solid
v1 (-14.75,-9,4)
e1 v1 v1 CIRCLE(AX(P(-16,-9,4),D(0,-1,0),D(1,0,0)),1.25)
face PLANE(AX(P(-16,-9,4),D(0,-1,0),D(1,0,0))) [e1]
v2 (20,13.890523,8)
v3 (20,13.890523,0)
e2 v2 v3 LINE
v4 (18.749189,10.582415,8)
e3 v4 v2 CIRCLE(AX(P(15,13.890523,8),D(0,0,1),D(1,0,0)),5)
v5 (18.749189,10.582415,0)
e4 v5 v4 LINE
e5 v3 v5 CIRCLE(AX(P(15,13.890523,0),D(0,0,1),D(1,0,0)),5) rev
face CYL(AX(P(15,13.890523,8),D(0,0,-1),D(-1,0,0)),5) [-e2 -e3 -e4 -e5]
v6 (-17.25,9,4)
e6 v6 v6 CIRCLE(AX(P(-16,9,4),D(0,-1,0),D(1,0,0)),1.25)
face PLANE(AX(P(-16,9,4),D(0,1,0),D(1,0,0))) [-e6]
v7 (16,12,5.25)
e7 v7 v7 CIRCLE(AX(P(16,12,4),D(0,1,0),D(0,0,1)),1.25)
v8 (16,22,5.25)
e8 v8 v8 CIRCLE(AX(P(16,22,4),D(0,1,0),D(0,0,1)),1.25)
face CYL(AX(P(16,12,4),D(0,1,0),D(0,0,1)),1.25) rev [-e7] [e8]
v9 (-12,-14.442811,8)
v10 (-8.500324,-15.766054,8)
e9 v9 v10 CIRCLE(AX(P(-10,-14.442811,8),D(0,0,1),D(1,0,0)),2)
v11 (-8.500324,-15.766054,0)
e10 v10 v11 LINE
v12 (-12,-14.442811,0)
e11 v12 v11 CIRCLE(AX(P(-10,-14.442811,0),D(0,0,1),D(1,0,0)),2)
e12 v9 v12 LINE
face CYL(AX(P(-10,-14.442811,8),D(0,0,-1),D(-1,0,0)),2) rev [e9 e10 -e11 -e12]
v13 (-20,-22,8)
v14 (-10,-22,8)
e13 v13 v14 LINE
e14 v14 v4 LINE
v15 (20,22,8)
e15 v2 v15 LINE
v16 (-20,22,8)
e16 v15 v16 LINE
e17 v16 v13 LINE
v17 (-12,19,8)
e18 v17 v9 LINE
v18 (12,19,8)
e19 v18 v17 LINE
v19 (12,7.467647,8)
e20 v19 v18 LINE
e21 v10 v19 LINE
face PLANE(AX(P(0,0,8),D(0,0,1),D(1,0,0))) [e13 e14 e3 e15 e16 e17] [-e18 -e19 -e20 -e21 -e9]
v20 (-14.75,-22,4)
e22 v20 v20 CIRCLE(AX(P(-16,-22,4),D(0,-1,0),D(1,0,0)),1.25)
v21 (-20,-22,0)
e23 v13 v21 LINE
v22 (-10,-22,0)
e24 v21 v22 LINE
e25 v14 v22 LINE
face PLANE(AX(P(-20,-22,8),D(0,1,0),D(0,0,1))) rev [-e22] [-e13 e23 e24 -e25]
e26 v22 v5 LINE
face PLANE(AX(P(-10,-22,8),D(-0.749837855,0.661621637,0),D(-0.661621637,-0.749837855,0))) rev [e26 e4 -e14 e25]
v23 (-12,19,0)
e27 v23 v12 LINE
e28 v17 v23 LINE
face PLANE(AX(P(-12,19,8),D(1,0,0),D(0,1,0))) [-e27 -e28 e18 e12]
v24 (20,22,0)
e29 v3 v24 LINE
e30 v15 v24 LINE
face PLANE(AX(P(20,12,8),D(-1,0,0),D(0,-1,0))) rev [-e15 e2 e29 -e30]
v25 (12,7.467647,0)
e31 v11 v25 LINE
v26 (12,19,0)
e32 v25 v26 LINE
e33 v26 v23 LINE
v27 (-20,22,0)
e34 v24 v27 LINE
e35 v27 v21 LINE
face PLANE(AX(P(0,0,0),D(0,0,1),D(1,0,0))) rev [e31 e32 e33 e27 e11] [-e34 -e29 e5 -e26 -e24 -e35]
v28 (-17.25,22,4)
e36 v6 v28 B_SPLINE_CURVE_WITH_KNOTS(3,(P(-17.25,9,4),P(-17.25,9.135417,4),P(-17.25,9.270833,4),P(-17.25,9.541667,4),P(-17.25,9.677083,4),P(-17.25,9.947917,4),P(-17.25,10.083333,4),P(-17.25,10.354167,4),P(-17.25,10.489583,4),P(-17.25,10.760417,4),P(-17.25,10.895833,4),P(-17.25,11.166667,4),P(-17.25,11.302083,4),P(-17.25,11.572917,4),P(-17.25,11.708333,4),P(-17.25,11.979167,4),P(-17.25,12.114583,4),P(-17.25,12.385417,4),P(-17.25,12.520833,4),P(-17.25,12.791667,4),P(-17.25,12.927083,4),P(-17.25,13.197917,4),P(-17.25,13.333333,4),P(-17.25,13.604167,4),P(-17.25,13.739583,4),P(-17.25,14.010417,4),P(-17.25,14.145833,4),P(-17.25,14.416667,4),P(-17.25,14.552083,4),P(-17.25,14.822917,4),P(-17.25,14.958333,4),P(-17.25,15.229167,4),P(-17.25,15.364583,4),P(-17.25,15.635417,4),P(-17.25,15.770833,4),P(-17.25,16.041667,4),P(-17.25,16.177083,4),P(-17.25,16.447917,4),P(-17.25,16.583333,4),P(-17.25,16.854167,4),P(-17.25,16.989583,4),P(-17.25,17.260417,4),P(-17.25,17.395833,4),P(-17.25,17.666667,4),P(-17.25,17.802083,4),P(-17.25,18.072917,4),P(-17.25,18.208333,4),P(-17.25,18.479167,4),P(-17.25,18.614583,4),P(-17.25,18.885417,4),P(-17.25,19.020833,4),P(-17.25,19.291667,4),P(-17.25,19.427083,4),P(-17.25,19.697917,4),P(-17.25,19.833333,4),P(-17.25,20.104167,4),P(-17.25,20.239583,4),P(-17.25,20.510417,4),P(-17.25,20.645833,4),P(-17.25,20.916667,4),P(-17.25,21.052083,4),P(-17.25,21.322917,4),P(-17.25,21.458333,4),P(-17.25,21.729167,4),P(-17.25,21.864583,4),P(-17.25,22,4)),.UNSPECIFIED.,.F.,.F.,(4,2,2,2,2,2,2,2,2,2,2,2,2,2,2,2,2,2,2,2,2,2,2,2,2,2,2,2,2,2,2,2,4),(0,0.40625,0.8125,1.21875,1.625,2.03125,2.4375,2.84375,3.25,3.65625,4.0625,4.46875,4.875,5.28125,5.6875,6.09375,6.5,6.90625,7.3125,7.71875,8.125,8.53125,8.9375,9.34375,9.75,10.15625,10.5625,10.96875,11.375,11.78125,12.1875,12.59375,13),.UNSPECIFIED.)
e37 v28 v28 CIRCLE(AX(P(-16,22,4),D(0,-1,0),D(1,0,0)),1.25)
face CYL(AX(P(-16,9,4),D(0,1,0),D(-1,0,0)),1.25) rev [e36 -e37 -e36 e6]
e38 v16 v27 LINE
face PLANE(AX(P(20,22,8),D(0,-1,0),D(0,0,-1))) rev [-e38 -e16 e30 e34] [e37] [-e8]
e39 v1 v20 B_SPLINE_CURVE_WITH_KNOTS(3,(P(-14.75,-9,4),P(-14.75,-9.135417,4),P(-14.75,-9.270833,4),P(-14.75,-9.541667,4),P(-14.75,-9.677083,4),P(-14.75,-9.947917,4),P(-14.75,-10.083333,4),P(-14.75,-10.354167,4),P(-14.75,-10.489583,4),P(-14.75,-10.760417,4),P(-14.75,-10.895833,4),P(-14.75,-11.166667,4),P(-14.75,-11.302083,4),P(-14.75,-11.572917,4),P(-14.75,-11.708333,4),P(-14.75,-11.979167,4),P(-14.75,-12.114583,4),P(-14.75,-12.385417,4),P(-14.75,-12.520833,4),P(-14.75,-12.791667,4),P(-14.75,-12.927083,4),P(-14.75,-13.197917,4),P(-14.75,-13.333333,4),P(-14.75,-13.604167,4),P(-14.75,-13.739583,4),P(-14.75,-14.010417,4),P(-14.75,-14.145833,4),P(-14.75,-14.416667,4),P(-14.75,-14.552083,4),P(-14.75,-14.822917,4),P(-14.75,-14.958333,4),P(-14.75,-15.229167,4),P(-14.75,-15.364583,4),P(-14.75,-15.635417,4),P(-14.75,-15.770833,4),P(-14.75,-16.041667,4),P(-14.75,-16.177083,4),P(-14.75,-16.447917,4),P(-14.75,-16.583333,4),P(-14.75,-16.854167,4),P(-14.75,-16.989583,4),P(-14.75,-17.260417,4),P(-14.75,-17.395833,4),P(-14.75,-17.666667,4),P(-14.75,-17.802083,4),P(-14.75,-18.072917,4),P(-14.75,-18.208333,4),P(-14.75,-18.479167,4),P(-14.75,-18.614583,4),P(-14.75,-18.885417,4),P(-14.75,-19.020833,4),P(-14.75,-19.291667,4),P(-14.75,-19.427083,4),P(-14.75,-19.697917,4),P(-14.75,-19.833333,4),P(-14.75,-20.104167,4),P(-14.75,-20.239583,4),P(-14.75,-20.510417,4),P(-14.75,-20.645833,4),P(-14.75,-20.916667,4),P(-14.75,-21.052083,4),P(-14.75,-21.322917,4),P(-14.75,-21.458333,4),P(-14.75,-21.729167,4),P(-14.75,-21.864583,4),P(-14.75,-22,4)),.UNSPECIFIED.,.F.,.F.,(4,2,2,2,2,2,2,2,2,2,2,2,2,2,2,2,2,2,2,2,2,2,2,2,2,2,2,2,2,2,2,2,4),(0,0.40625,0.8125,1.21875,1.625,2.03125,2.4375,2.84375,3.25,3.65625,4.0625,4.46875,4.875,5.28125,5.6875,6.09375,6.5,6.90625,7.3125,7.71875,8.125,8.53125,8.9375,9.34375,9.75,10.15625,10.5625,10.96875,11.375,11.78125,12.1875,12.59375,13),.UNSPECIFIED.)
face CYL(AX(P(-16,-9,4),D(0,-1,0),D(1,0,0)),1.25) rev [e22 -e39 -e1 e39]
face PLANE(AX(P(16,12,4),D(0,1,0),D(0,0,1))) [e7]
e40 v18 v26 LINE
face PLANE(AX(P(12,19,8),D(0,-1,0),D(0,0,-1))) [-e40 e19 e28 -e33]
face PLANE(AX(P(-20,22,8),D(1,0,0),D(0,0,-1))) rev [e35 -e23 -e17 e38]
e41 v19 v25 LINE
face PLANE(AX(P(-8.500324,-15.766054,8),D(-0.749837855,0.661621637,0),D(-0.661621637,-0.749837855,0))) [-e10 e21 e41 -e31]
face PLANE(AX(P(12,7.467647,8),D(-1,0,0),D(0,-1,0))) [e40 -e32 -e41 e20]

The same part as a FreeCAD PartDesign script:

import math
import FreeCAD as App
import Part
import Sketcher

V = App.Vector


def edges_at(feature, points):
    """Names of the edges that pass closest to the given points."""
    edges = feature.Shape.Edges
    near = lambda p: min(range(len(edges)), key=lambda i: edges[i].distToShape(Part.Vertex(*p))[0])
    return sorted({f"Edge{near(p) + 1}" for p in points})


def add_polygon(sketch, points):
    """Adds a closed chain of lines whose ends are joined by coincident constraints."""
    first, n = sketch.GeometryCount, len(points)
    for a, b in zip(points, points[1:] + points[:1]):
        sketch.addGeometry(Part.LineSegment(App.Vector(*a, 0), App.Vector(*b, 0)), False)
    for i in range(n):
        sketch.addConstraint(Sketcher.Constraint("Coincident", first + i, 2, first + (i + 1) % n, 1))

doc = App.newDocument("Part")
params = doc.addObject("Spreadsheet::Sheet", "Params")
for row, (alias, value) in enumerate([
    ("sketch1_radius", "2 mm"),
    ("sketch1_width", "10 mm"),
    ("sketch1_width2", "40 mm"),
    ("sketch1_width3", "24 mm"),
    ("sketch1_height", "44 mm"),
    ("pad1_length", "8 mm"),
    ("sketch2_diameter", "2.5 mm"),
    ("pocket1_length", "13 mm"),
    ("sketch3_diameter", "2.5 mm"),
    ("pocket2_length", "10 mm"),
    ("fillet_radius", "5 mm"),
], start=1):
    params.set(f"A{row}", alias)
    params.set(f"B{row}", "=" + value)
    params.setAlias(f"B{row}", alias)

body = doc.addObject("PartDesign::Body", "Body")

# Sketch on XY plane
sketch1 = body.newObject("Sketcher::SketchObject", "Sketch")
sketch1.AttachmentSupport = (doc.getObject("XY_Plane"), [""])
sketch1.MapMode = "FlatFace"
add_polygon(sketch1, [(-20, 22), (-20, -22), (-10, -22), (20, 12), (20, 22)])  # lines 0-4
sketch1.addGeometry(Part.LineSegment(V(-12, -14.442811, 0), V(-12, 19, 0)), False)  # 5
sketch1.addGeometry(Part.LineSegment(V(-12, 19, 0), V(12, 19, 0)), False)  # 6
sketch1.addGeometry(Part.LineSegment(V(12, 19, 0), V(12, 7.467647, 0)), False)  # 7
sketch1.addGeometry(Part.LineSegment(V(12, 7.467647, 0), V(-8.500324, -15.766054, 0)), False)  # 8
sketch1.addGeometry(Part.ArcOfCircle(Part.Circle(V(-10, -14.442811, 0), V(0, 0, 1), 2), math.radians(180), math.radians(318.576334)), False)  # 9
sketch1.addConstraint([
    Sketcher.Constraint("Coincident", 5, 2, 6, 1),
    Sketcher.Constraint("Coincident", 6, 2, 7, 1),
    Sketcher.Constraint("Coincident", 7, 2, 8, 1),
    Sketcher.Constraint("Tangent", 8, 2, 9, 2),
    Sketcher.Constraint("Tangent", 9, 1, 5, 1),
    Sketcher.Constraint("Vertical", 0),
    Sketcher.Constraint("Horizontal", 1),
    Sketcher.Constraint("Vertical", 3),
    Sketcher.Constraint("Horizontal", 4),
    Sketcher.Constraint("Vertical", 5),
    Sketcher.Constraint("Horizontal", 6),
    Sketcher.Constraint("Vertical", 7),
    Sketcher.Constraint("Symmetric", 0, 2, 3, 2, -1, 1),
    Sketcher.Constraint("Parallel", 2, 8),
    Sketcher.Constraint("Vertical", 9, 3, 1, 2),
    Sketcher.Constraint("Equal", 1, 3),
    Sketcher.Constraint("Radius", 9, 2.0),
    Sketcher.Constraint("DistanceX", 1, 1, 1, 2, 10.0),
    Sketcher.Constraint("DistanceX", 4, 2, 4, 1, 40.0),
    Sketcher.Constraint("DistanceX", 6, 1, 6, 2, 24.0),
    Sketcher.Constraint("DistanceY", 0, 2, 0, 1, 44.0),
    Sketcher.Constraint("DistanceY", -1, 1, 5, 2, 19.0),
    Sketcher.Constraint("DistanceY", 5, 1, 5, 2, 33.442811),
])
sketch1.setExpression("Constraints[21]", "Params.sketch1_radius")
sketch1.setExpression("Constraints[22]", "Params.sketch1_width")
sketch1.setExpression("Constraints[23]", "Params.sketch1_width2")
sketch1.setExpression("Constraints[24]", "Params.sketch1_width3")
sketch1.setExpression("Constraints[25]", "Params.sketch1_height")
pad1 = body.newObject("PartDesign::Pad", "Pad")
pad1.Profile = sketch1
pad1.setExpression("Length", "Params.pad1_length")

# Sketch on XZ plane
sketch2 = body.newObject("Sketcher::SketchObject", "Sketch001")
sketch2.AttachmentSupport = (doc.getObject("XZ_Plane"), [""])
sketch2.MapMode = "FlatFace"
sketch2.AttachmentOffset = App.Placement(V(0, 0, 22), App.Rotation())
sketch2.addGeometry(Part.Circle(V(-16, 4, 0), V(0, 0, 1), 1.25), False)
sketch2.addConstraint([
    Sketcher.Constraint("Diameter", 0, 2.5),
    Sketcher.Constraint("DistanceX", 0, 3, -1, 1, 16.0),
    Sketcher.Constraint("DistanceY", -1, 1, 0, 3, 4.0),
])
sketch2.setExpression("Constraints[0]", "Params.sketch2_diameter")
pocket1 = body.newObject("PartDesign::Pocket", "Pocket")
pocket1.Profile = sketch2
pocket1.setExpression("Length", "Params.pocket1_length")

# Sketch on XZ plane
sketch3 = body.newObject("Sketcher::SketchObject", "Sketch002")
sketch3.AttachmentSupport = (doc.getObject("XZ_Plane"), [""])
sketch3.MapMode = "FlatFace"
sketch3.AttachmentOffset = App.Placement(V(0, 0, -22), App.Rotation())
sketch3.addGeometry(Part.Circle(V(16, 4, 0), V(0, 0, 1), 1.25), False)
sketch3.addConstraint([
    Sketcher.Constraint("Diameter", 0, 2.5),
    Sketcher.Constraint("DistanceX", -1, 1, 0, 3, 16.0),
    Sketcher.Constraint("DistanceY", -1, 1, 0, 3, 4.0),
])
sketch3.setExpression("Constraints[0]", "Params.sketch3_diameter")
pocket2 = body.newObject("PartDesign::Pocket", "Pocket001")
pocket2.Profile = sketch3
pocket2.setExpression("Length", "Params.pocket2_length")
pocket2.Reversed = True
doc.recompute()

fillet = body.newObject("PartDesign::Fillet", "Fillet")
fillet.Base = (pocket2, edges_at(pocket2, [(20, 12, 4)]))
fillet.setExpression("Radius", "Params.fillet_radius")
doc.recompute()

mirrored = body.newObject("PartDesign::Mirrored", "Mirrored")
mirrored.Originals = [pocket1]
mirrored.MirrorPlane = (doc.getObject("XZ_Plane"), [""])
body.Tip = mirrored

doc.recompute()
